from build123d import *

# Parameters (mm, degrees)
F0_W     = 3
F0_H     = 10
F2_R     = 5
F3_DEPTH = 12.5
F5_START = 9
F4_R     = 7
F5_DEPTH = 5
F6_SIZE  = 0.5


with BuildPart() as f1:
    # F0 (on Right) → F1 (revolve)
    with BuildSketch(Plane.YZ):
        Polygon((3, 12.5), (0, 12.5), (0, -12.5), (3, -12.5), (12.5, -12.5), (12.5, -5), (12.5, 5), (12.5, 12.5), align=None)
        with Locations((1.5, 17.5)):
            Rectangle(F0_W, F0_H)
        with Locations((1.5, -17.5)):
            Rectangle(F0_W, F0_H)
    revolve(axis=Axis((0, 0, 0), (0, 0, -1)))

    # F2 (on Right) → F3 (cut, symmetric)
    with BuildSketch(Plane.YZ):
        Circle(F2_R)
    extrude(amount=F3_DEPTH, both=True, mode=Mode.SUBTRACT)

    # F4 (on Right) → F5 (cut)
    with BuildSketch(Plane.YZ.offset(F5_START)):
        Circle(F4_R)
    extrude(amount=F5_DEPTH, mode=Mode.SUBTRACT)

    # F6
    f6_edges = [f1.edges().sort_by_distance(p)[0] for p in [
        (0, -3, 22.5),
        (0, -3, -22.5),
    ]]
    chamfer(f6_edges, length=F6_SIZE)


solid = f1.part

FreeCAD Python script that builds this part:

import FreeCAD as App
import Part
import Sketcher
from FreeCAD import Vector
Q = App.Units.Quantity


def edges_at(feature, points):
    """Names of the edges that pass closest to the given points."""
    edges = feature.Shape.Edges
    near = lambda p: min(range(len(edges)), key=lambda i: edges[i].distToShape(Part.Vertex(*p))[0])
    return sorted({f"Edge{near(p) + 1}" for p in points})

doc = App.newDocument("Part")
params = doc.addObject("Spreadsheet::Sheet", "Params")
for row, (alias, value) in enumerate([
    ("sketch1_width", "3 mm"),
    ("sketch1_height", "25 mm"),
    ("sketch1_height2", "10 mm"),
    ("sketch1_width2", "9.5 mm"),
    ("revolution_angle", "360 deg"),
    ("sketch2_diameter", "10 mm"),
    ("pocket1_length", "25 mm"),
    ("sketch3_diameter", "14 mm"),
    ("pocket2_length", "5 mm"),
    ("chamfer_size", "0.5 mm"),
], start=1):
    params.set(f"A{row}", alias)
    params.set(f"B{row}", "=" + value)
    params.setAlias(f"B{row}", alias)

body = doc.addObject("PartDesign::Body", "Body")

# Sketch on YZ plane
sketch1 = body.newObject("Sketcher::SketchObject", "Sketch")
sketch1.AttachmentSupport = (doc.getObject("YZ_Plane"), [""])
sketch1.MapMode = "FlatFace"
sketch1.addGeometry([
    Part.LineSegment(Vector(3, -12.5, 0), Vector(12.5, -12.5, 0)),  # 0
    Part.LineSegment(Vector(12.5, -12.5, 0), Vector(12.5, 12.5, 0)),  # 1
    Part.LineSegment(Vector(12.5, 12.5, 0), Vector(3, 12.5, 0)),  # 2
    Part.LineSegment(Vector(3, 12.5, 0), Vector(3, 22.5, 0)),  # 3
    Part.LineSegment(Vector(3, 22.5, 0), Vector(0, 22.5, 0)),  # 4
    Part.LineSegment(Vector(0, 22.5, 0), Vector(0, -22.5, 0)),  # 5
    Part.LineSegment(Vector(0, -22.5, 0), Vector(3, -22.5, 0)),  # 6
    Part.LineSegment(Vector(3, -22.5, 0), Vector(3, -12.5, 0)),  # 7
], False)
sketch1.addConstraint([
    Sketcher.Constraint("Coincident", 0, 2, 1, 1),
    Sketcher.Constraint("Coincident", 1, 2, 2, 1),
    Sketcher.Constraint("Coincident", 2, 2, 3, 1),
    Sketcher.Constraint("Coincident", 3, 2, 4, 1),
    Sketcher.Constraint("Coincident", 4, 2, 5, 1),
    Sketcher.Constraint("Coincident", 5, 2, 6, 1),
    Sketcher.Constraint("Coincident", 6, 2, 7, 1),
    Sketcher.Constraint("Coincident", 7, 2, 0, 1),
    Sketcher.Constraint("Horizontal", 0),
    Sketcher.Constraint("Vertical", 1),
    Sketcher.Constraint("Horizontal", 2),
    Sketcher.Constraint("Vertical", 3),
    Sketcher.Constraint("Horizontal", 4),
    Sketcher.Constraint("Vertical", 5),
    Sketcher.Constraint("Horizontal", 6),
    Sketcher.Constraint("Vertical", 7),
    Sketcher.Constraint("Symmetric", 4, 2, 5, 2, -1, 1),
    Sketcher.Constraint("Symmetric", 2, 2, 7, 2, -1),
    Sketcher.Constraint("DistanceX", 4, 2, 4, 1, Q("3 mm")),
    Sketcher.Constraint("DistanceY", 1, 1, 1, 2, Q("25 mm")),
    Sketcher.Constraint("DistanceY", 3, 1, 3, 2, Q("10 mm")),
    Sketcher.Constraint("DistanceX", 0, 1, 0, 2, Q("9.5 mm")),
])
sketch1.setExpression("Constraints[18]", "Params.sketch1_width")
sketch1.setExpression("Constraints[19]", "Params.sketch1_height")
sketch1.setExpression("Constraints[20]", "Params.sketch1_height2")
sketch1.setExpression("Constraints[21]", "Params.sketch1_width2")
revolution = body.newObject("PartDesign::Revolution", "Revolution")
revolution.Profile = sketch1
revolution.ReferenceAxis = (sketch1, ["V_Axis"])
revolution.setExpression("Angle", "Params.revolution_angle")

# Sketch on YZ plane
sketch2 = body.newObject("Sketcher::SketchObject", "Sketch001")
sketch2.AttachmentSupport = (doc.getObject("YZ_Plane"), [""])
sketch2.MapMode = "FlatFace"
sketch2.addGeometry(Part.Circle(Vector(0, 0, 0), Vector(0, 0, 1), 5), False)
sketch2.addConstraint([
    Sketcher.Constraint("Coincident", 0, 3, -1, 1),
    Sketcher.Constraint("Diameter", 0, Q("10 mm")),
])
sketch2.setExpression("Constraints[1]", "Params.sketch2_diameter")
pocket1 = body.newObject("PartDesign::Pocket", "Pocket")
pocket1.Profile = sketch2
pocket1.setExpression("Length", "Params.pocket1_length")
pocket1.Midplane = True

# Sketch on YZ plane
sketch3 = body.newObject("Sketcher::SketchObject", "Sketch002")
sketch3.AttachmentSupport = (doc.getObject("YZ_Plane"), [""])
sketch3.MapMode = "FlatFace"
sketch3.AttachmentOffset = App.Placement(Vector(0, 0, 9), App.Rotation())
sketch3.addGeometry(Part.Circle(Vector(0, 0, 0), Vector(0, 0, 1), 7), False)
sketch3.addConstraint([
    Sketcher.Constraint("Coincident", 0, 3, -1, 1),
    Sketcher.Constraint("Diameter", 0, Q("14 mm")),
])
sketch3.setExpression("Constraints[1]", "Params.sketch3_diameter")
pocket2 = body.newObject("PartDesign::Pocket", "Pocket001")
pocket2.Profile = sketch3
pocket2.setExpression("Length", "Params.pocket2_length")
pocket2.Reversed = True
doc.recompute()

chamfer = body.newObject("PartDesign::Chamfer", "Chamfer")
chamfer.Base = (pocket2, edges_at(pocket2, [(0, -3, 22.5), (0, -3, -22.5)]))
chamfer.setExpression("Size", "Params.chamfer_size")

doc.recompute()
